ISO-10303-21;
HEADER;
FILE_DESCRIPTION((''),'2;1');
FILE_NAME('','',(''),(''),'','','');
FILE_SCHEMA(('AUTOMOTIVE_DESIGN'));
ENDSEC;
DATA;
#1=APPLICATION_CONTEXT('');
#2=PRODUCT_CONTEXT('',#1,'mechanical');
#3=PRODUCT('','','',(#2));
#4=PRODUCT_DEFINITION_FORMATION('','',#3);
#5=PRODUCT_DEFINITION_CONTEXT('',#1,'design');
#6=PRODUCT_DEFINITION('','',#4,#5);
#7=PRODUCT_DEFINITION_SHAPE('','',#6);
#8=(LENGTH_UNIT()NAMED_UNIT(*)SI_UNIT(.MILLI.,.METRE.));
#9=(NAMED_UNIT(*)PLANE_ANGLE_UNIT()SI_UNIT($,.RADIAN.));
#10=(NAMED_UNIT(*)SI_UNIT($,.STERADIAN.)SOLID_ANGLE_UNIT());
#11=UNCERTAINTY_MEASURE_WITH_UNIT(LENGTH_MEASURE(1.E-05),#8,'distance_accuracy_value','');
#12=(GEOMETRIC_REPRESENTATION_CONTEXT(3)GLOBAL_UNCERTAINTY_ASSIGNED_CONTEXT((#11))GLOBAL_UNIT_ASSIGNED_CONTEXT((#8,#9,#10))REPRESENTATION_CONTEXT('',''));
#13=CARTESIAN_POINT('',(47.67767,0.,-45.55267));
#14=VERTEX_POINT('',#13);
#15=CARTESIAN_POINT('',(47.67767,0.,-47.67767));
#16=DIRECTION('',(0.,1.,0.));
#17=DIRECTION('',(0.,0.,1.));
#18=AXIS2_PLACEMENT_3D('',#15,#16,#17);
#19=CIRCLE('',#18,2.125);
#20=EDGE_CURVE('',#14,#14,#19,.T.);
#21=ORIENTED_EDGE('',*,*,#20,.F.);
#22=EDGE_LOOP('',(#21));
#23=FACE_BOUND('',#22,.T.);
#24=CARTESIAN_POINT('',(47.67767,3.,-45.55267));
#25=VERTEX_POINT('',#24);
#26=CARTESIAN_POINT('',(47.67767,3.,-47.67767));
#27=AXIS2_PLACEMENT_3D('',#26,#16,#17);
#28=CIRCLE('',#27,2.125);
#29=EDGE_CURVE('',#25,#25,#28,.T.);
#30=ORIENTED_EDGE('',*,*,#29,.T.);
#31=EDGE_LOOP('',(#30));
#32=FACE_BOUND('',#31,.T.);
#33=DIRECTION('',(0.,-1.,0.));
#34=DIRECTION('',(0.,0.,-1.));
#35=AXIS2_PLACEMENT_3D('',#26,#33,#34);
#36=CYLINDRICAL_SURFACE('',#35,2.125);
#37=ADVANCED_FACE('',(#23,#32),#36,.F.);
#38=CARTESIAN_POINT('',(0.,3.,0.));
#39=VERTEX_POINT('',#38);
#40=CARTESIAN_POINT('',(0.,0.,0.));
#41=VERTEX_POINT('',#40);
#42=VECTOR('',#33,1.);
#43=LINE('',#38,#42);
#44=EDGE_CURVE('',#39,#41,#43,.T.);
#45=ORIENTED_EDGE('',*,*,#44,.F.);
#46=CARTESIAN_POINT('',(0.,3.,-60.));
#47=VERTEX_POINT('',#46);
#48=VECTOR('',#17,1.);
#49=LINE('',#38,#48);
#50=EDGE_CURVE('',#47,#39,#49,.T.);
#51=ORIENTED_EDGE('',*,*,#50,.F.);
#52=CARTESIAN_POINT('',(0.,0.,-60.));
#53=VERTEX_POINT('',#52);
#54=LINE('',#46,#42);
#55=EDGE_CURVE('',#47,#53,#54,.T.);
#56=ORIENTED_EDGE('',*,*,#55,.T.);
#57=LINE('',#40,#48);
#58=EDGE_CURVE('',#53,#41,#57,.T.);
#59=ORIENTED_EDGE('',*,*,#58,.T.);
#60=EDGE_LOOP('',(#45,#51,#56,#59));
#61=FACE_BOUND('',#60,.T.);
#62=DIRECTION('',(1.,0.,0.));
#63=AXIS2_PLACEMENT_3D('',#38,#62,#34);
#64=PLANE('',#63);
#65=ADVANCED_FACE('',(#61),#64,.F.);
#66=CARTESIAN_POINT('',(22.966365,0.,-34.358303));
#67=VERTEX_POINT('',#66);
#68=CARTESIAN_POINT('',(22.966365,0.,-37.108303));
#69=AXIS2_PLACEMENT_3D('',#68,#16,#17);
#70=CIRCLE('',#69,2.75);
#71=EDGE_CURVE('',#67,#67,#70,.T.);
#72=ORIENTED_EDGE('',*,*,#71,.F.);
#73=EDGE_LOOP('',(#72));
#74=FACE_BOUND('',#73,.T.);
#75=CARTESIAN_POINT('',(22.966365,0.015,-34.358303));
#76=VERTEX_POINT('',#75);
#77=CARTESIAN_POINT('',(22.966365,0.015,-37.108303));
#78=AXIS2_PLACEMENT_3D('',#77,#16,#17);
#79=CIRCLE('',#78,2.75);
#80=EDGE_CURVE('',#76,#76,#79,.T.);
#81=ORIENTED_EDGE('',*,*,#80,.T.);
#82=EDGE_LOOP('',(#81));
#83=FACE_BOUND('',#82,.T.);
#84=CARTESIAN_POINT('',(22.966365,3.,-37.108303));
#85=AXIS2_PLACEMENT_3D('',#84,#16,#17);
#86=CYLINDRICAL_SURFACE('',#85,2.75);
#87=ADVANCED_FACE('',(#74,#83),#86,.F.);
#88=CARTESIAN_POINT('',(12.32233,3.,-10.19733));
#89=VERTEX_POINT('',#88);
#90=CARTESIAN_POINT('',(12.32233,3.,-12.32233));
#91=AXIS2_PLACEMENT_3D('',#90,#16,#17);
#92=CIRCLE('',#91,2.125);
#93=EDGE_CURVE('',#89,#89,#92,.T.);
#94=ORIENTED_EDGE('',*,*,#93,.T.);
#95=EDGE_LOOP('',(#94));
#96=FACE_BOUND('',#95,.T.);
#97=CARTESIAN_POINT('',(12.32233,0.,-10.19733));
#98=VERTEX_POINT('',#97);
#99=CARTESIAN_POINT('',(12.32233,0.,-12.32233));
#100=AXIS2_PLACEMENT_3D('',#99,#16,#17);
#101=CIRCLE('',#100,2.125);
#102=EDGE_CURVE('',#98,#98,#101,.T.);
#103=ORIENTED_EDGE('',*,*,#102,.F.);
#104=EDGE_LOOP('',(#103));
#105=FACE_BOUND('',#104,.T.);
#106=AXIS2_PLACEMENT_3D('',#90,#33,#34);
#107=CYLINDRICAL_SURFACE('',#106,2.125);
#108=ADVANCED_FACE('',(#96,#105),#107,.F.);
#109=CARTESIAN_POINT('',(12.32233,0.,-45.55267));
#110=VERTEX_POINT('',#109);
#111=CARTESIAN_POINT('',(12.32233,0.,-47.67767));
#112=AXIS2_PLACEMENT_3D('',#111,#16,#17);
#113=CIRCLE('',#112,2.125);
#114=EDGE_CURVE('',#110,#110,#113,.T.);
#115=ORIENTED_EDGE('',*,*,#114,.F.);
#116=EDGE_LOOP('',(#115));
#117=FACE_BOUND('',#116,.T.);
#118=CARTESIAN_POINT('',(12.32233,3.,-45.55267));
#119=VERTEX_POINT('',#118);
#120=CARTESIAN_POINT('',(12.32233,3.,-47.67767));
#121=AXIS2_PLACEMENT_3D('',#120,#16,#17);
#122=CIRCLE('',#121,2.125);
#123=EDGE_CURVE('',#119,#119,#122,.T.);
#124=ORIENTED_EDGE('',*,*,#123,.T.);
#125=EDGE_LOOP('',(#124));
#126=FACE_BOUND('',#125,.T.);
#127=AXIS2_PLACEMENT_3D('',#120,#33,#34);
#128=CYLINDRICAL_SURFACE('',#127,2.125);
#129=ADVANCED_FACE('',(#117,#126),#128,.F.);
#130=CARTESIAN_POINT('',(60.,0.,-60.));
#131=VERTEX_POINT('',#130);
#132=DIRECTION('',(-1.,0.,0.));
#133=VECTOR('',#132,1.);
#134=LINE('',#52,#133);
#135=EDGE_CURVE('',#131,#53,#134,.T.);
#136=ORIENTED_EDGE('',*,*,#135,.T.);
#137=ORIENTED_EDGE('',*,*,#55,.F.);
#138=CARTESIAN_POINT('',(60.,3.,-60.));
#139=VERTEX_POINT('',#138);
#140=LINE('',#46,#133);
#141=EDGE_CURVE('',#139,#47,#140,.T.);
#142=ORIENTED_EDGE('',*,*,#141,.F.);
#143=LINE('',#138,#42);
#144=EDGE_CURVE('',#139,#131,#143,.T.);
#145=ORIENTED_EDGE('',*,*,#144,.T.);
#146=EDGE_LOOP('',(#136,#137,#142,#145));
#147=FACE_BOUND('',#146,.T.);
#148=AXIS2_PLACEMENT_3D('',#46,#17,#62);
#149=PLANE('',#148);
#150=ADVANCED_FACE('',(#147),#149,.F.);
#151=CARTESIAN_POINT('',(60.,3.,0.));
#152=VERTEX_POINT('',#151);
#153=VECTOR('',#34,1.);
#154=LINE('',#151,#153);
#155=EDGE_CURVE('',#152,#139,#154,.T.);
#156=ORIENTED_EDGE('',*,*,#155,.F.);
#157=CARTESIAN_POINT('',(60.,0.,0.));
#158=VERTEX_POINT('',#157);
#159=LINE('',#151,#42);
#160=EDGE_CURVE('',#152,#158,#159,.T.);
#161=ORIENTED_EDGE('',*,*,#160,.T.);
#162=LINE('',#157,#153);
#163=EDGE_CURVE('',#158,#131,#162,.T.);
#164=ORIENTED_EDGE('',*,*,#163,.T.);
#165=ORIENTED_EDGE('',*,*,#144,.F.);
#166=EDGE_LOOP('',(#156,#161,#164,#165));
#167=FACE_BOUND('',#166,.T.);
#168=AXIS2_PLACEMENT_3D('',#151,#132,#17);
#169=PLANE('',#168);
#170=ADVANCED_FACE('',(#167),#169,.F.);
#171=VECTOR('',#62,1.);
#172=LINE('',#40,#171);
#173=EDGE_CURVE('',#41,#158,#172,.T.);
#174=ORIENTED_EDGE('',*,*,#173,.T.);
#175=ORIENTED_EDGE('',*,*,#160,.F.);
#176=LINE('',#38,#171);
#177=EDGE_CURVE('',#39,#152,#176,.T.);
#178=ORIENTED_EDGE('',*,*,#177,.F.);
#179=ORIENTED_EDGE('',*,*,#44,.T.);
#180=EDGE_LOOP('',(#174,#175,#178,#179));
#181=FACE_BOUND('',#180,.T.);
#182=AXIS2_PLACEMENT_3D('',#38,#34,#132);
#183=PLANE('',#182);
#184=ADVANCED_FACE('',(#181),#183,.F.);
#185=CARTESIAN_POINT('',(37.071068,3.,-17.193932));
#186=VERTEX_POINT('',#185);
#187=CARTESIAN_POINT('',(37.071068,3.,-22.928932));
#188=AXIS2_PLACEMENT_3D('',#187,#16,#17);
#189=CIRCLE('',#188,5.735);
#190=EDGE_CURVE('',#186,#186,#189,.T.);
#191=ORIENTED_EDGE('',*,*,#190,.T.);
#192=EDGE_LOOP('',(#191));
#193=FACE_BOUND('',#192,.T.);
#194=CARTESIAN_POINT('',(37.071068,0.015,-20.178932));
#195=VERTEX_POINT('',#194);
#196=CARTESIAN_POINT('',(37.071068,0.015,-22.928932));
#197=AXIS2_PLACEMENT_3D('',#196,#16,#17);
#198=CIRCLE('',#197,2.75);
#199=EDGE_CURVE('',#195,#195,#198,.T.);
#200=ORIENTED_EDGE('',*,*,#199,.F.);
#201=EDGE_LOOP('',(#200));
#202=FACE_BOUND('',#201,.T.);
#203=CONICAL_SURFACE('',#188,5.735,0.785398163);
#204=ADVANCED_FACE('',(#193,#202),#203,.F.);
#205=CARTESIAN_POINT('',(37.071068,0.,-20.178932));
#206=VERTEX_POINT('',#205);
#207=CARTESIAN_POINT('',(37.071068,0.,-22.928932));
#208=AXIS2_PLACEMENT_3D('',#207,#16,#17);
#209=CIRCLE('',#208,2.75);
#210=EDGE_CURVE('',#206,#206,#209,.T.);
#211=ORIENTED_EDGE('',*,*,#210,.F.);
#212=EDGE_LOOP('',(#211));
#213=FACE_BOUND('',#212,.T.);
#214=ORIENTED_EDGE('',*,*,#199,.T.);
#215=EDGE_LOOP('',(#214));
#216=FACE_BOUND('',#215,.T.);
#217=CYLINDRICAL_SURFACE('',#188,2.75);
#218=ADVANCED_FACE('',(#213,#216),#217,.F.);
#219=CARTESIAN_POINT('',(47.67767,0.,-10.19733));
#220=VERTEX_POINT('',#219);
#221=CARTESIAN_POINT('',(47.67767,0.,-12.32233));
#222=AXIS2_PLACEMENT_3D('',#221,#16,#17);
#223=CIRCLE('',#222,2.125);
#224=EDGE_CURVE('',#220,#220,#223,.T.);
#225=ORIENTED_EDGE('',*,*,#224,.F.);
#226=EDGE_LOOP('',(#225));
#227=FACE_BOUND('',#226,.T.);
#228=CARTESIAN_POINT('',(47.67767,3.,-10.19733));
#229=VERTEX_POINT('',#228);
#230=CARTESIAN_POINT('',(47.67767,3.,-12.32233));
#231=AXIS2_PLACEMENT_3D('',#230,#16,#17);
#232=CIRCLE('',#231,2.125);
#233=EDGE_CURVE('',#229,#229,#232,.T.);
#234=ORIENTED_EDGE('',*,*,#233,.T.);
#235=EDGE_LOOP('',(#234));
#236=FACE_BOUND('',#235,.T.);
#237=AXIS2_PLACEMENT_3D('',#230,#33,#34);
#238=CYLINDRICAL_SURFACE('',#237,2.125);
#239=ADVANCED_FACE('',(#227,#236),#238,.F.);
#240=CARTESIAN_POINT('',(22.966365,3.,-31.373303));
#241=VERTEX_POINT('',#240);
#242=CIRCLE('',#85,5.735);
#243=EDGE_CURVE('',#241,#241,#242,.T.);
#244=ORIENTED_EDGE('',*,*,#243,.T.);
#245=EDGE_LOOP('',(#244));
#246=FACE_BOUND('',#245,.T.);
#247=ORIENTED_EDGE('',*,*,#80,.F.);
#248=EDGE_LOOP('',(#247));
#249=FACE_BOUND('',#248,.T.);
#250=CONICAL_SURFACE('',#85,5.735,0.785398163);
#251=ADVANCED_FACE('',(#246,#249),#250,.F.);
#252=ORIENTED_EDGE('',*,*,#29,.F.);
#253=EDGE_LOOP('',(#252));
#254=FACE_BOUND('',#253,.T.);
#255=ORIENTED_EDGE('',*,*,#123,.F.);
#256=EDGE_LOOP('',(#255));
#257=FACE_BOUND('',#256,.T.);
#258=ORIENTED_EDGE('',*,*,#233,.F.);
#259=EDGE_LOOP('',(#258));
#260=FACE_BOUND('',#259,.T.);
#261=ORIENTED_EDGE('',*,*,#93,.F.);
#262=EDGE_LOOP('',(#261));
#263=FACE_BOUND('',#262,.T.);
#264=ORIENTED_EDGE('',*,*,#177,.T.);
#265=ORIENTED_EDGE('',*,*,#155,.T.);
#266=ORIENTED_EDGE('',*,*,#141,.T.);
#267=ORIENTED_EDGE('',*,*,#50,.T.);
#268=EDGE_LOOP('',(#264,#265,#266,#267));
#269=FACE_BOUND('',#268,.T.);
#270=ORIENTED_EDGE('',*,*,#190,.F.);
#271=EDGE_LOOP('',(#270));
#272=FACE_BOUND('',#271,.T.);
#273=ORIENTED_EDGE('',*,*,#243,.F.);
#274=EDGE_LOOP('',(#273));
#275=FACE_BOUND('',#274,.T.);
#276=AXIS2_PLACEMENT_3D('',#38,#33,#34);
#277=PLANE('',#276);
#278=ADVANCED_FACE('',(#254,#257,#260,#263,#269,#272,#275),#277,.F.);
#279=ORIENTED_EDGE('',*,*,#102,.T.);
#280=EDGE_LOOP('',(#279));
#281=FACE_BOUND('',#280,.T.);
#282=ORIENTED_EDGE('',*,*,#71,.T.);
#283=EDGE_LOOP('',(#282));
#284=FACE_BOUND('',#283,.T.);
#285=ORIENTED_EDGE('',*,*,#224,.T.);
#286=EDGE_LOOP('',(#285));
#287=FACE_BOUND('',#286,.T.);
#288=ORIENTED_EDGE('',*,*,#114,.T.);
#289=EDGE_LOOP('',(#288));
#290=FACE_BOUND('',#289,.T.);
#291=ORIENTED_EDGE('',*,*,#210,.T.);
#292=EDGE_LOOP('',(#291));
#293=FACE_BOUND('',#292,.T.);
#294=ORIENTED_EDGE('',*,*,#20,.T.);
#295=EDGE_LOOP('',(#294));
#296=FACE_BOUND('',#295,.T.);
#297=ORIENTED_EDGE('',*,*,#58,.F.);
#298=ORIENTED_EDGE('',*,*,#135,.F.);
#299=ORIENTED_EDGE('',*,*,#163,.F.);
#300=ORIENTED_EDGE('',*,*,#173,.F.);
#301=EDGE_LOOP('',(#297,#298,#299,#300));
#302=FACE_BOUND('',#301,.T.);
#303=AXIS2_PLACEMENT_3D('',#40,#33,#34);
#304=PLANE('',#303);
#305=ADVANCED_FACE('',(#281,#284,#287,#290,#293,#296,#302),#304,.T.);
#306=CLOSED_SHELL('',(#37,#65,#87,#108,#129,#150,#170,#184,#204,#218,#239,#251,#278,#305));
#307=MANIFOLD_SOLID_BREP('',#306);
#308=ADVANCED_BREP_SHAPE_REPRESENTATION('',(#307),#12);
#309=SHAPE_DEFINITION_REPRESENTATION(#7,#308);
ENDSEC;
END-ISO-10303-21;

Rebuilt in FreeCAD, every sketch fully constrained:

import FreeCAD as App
import Part
import Sketcher
Q = App.Units.Quantity

doc = App.newDocument("Part")
body = doc.addObject("PartDesign::Body", "Body")

# Sketch on XZ plane
sketch1 = doc.addObject("Sketcher::SketchObject", "Sketch")
body.addObject(sketch1)
sketch1.AttachmentSupport = (doc.XZ_Plane, [""])
sketch1.MapMode = "FlatFace"
sketch1.addGeometry(Part.LineSegment(App.Vector(0, -60, 0), App.Vector(0, 0, 0)), False)
sketch1.addGeometry(Part.LineSegment(App.Vector(0, 0, 0), App.Vector(60, 0, 0)), False)
sketch1.addGeometry(Part.LineSegment(App.Vector(60, 0, 0), App.Vector(60, -60, 0)), False)
sketch1.addGeometry(Part.LineSegment(App.Vector(60, -60, 0), App.Vector(0, -60, 0)), False)
sketch1.addGeometry(Part.Circle(App.Vector(12.3, -12.3, 0), App.Vector(0, 0, 1), 2.1), False)
sketch1.addGeometry(Part.Circle(App.Vector(47.7, -12.3, 0), App.Vector(0, 0, 1), 2.1), False)
sketch1.addGeometry(Part.Circle(App.Vector(37.1, -22.9, 0), App.Vector(0, 0, 1), 0.5), False)
sketch1.addGeometry(Part.Circle(App.Vector(23, -37.1, 0), App.Vector(0, 0, 1), 0.5), False)
sketch1.addGeometry(Part.Circle(App.Vector(12.3, -47.7, 0), App.Vector(0, 0, 1), 2.1), False)
sketch1.addGeometry(Part.Circle(App.Vector(47.7, -47.7, 0), App.Vector(0, 0, 1), 2.1), False)
sketch1.addConstraint(Sketcher.Constraint("Coincident", 0, 2, 1, 1))
sketch1.addConstraint(Sketcher.Constraint("Coincident", 1, 2, 2, 1))
sketch1.addConstraint(Sketcher.Constraint("Coincident", 2, 2, 3, 1))
sketch1.addConstraint(Sketcher.Constraint("Coincident", 3, 2, 0, 1))
sketch1.addConstraint(Sketcher.Constraint("Vertical", 0))
sketch1.addConstraint(Sketcher.Constraint("Horizontal", 1))
sketch1.addConstraint(Sketcher.Constraint("Vertical", 2))
sketch1.addConstraint(Sketcher.Constraint("Horizontal", 3))
sketch1.addConstraint(Sketcher.Constraint("Coincident", 0, 2, -1, 1))
sketch1.addConstraint(Sketcher.Constraint("Equal", 4, 5))
sketch1.addConstraint(Sketcher.Constraint("Equal", 6, 7))
sketch1.addConstraint(Sketcher.Constraint("Equal", 5, 8))
sketch1.addConstraint(Sketcher.Constraint("Equal", 8, 9))
sketch1.addConstraint(Sketcher.Constraint("Horizontal", 4, 3, 5, 3))
sketch1.addConstraint(Sketcher.Constraint("Horizontal", 8, 3, 9, 3))
sketch1.addConstraint(Sketcher.Constraint("Vertical", 4, 3, 8, 3))
sketch1.addConstraint(Sketcher.Constraint("Vertical", 5, 3, 9, 3))
sketch1.addConstraint(Sketcher.Constraint("Equal", 3, 0))
sketch1.addConstraint(Sketcher.Constraint("Diameter", 6, 1.0))
sketch1.addConstraint(Sketcher.Constraint("Diameter", 4, 4.25))
sketch1.addConstraint(Sketcher.Constraint("DistanceX", 1, 1, 1, 2, 60.0))
sketch1.addConstraint(Sketcher.Constraint("DistanceX", 6, 3, 5, 3, 10.606602))
sketch1.addConstraint(Sketcher.Constraint("DistanceY", 6, 3, 5, 3, 10.606602))
sketch1.addConstraint(Sketcher.Constraint("DistanceX", -1, 1, 4, 3, 12.32233))
sketch1.addConstraint(Sketcher.Constraint("DistanceY", 4, 3, -1, 1, 12.32233))
sketch1.addConstraint(Sketcher.Constraint("DistanceX", -1, 1, 5, 3, 47.67767))
sketch1.addConstraint(Sketcher.Constraint("DistanceY", 8, 3, -1, 1, 47.67767))
sketch1.addConstraint(Sketcher.Constraint("DistanceY", 7, 3, 6, 3, 14.179371))
sketch1.addConstraint(Sketcher.Constraint("DistanceX", -1, 1, 7, 3, 22.966365))
pad1 = doc.addObject("PartDesign::Pad", "Pad")
body.addObject(pad1)
pad1.Profile = sketch1
pad1.Length = 3
pad1.Reversed = True

# Sketch on YZ plane
sketch2 = doc.addObject("Sketcher::SketchObject", "Sketch001")
body.addObject(sketch2)
sketch2.AttachmentSupport = (doc.YZ_Plane, [""])
sketch2.MapMode = "FlatFace"
sketch2.AttachmentOffset = App.Placement(App.Vector(0, 0, 22.966365), App.Rotation())
sketch2.addGeometry(Part.LineSegment(App.Vector(0, -37.108, 0), App.Vector(3, -37.108, 0)), False)
sketch2.addGeometry(Part.LineSegment(App.Vector(3, -37.108, 0), App.Vector(3, -31.373, 0)), False)
sketch2.addGeometry(Part.LineSegment(App.Vector(3, -31.373, 0), App.Vector(0.015, -34.358, 0)), False)
sketch2.addGeometry(Part.LineSegment(App.Vector(0.015, -34.358, 0), App.Vector(0, -34.358, 0)), False)
sketch2.addGeometry(Part.LineSegment(App.Vector(0, -34.358, 0), App.Vector(0, -37.108, 0)), False)
sketch2.addGeometry(Part.LineSegment(App.Vector(3, -37.108, 0), App.Vector(0, -37.108, 0)), True)  # axis
sketch2.addConstraint(Sketcher.Constraint("Coincident", 0, 2, 1, 1))
sketch2.addConstraint(Sketcher.Constraint("Coincident", 1, 2, 2, 1))
sketch2.addConstraint(Sketcher.Constraint("Coincident", 2, 2, 3, 1))
sketch2.addConstraint(Sketcher.Constraint("Coincident", 3, 2, 4, 1))
sketch2.addConstraint(Sketcher.Constraint("Coincident", 4, 2, 0, 1))
sketch2.addConstraint(Sketcher.Constraint("Horizontal", 0))
sketch2.addConstraint(Sketcher.Constraint("Vertical", 1))
sketch2.addConstraint(Sketcher.Constraint("Horizontal", 3))
sketch2.addConstraint(Sketcher.Constraint("Vertical", 4))
sketch2.addConstraint(Sketcher.Constraint("Horizontal", 5))
sketch2.addConstraint(Sketcher.Constraint("Coincident", 5, 1, 0, 2))
sketch2.addConstraint(Sketcher.Constraint("PointOnObject", 3, 2, -2))
sketch2.addConstraint(Sketcher.Constraint("PointOnObject", 5, 2, -2))
sketch2.addConstraint(Sketcher.Constraint("DistanceX", 0, 1, 0, 2, 3.0))
sketch2.addConstraint(Sketcher.Constraint("Angle", 2, Q("-135 deg")))
sketch2.addConstraint(Sketcher.Constraint("DistanceY", 4, 2, 4, 1, 2.75))
sketch2.addConstraint(Sketcher.Constraint("DistanceX", 3, 2, 3, 1, 0.015))
sketch2.addConstraint(Sketcher.Constraint("DistanceY", 0, 2, -1, 1, 37.108303))
groove = doc.addObject("PartDesign::Groove", "Groove")
body.addObject(groove)
groove.Profile = sketch2
groove.ReferenceAxis = (sketch2, ["Axis0"])
groove.Angle = 360
doc.recompute()

datumline = doc.addObject("PartDesign::Line", "DatumLine")
body.addObject(datumline)
datumline.Placement = App.Placement(App.Vector(0, 0, 0), App.Rotation(App.Vector(0, 0, 1), App.Vector(0.705237617, 0, 0.708971017)))
linearpattern = doc.addObject("PartDesign::LinearPattern", "LinearPattern")
body.addObject(linearpattern)
linearpattern.Originals = [groove]
linearpattern.Direction = (datumline, [""])
linearpattern.Mode = "offset"
linearpattern.Offset = 19.99993
linearpattern.Occurrences = 2
body.Tip = linearpattern

doc.recompute()
